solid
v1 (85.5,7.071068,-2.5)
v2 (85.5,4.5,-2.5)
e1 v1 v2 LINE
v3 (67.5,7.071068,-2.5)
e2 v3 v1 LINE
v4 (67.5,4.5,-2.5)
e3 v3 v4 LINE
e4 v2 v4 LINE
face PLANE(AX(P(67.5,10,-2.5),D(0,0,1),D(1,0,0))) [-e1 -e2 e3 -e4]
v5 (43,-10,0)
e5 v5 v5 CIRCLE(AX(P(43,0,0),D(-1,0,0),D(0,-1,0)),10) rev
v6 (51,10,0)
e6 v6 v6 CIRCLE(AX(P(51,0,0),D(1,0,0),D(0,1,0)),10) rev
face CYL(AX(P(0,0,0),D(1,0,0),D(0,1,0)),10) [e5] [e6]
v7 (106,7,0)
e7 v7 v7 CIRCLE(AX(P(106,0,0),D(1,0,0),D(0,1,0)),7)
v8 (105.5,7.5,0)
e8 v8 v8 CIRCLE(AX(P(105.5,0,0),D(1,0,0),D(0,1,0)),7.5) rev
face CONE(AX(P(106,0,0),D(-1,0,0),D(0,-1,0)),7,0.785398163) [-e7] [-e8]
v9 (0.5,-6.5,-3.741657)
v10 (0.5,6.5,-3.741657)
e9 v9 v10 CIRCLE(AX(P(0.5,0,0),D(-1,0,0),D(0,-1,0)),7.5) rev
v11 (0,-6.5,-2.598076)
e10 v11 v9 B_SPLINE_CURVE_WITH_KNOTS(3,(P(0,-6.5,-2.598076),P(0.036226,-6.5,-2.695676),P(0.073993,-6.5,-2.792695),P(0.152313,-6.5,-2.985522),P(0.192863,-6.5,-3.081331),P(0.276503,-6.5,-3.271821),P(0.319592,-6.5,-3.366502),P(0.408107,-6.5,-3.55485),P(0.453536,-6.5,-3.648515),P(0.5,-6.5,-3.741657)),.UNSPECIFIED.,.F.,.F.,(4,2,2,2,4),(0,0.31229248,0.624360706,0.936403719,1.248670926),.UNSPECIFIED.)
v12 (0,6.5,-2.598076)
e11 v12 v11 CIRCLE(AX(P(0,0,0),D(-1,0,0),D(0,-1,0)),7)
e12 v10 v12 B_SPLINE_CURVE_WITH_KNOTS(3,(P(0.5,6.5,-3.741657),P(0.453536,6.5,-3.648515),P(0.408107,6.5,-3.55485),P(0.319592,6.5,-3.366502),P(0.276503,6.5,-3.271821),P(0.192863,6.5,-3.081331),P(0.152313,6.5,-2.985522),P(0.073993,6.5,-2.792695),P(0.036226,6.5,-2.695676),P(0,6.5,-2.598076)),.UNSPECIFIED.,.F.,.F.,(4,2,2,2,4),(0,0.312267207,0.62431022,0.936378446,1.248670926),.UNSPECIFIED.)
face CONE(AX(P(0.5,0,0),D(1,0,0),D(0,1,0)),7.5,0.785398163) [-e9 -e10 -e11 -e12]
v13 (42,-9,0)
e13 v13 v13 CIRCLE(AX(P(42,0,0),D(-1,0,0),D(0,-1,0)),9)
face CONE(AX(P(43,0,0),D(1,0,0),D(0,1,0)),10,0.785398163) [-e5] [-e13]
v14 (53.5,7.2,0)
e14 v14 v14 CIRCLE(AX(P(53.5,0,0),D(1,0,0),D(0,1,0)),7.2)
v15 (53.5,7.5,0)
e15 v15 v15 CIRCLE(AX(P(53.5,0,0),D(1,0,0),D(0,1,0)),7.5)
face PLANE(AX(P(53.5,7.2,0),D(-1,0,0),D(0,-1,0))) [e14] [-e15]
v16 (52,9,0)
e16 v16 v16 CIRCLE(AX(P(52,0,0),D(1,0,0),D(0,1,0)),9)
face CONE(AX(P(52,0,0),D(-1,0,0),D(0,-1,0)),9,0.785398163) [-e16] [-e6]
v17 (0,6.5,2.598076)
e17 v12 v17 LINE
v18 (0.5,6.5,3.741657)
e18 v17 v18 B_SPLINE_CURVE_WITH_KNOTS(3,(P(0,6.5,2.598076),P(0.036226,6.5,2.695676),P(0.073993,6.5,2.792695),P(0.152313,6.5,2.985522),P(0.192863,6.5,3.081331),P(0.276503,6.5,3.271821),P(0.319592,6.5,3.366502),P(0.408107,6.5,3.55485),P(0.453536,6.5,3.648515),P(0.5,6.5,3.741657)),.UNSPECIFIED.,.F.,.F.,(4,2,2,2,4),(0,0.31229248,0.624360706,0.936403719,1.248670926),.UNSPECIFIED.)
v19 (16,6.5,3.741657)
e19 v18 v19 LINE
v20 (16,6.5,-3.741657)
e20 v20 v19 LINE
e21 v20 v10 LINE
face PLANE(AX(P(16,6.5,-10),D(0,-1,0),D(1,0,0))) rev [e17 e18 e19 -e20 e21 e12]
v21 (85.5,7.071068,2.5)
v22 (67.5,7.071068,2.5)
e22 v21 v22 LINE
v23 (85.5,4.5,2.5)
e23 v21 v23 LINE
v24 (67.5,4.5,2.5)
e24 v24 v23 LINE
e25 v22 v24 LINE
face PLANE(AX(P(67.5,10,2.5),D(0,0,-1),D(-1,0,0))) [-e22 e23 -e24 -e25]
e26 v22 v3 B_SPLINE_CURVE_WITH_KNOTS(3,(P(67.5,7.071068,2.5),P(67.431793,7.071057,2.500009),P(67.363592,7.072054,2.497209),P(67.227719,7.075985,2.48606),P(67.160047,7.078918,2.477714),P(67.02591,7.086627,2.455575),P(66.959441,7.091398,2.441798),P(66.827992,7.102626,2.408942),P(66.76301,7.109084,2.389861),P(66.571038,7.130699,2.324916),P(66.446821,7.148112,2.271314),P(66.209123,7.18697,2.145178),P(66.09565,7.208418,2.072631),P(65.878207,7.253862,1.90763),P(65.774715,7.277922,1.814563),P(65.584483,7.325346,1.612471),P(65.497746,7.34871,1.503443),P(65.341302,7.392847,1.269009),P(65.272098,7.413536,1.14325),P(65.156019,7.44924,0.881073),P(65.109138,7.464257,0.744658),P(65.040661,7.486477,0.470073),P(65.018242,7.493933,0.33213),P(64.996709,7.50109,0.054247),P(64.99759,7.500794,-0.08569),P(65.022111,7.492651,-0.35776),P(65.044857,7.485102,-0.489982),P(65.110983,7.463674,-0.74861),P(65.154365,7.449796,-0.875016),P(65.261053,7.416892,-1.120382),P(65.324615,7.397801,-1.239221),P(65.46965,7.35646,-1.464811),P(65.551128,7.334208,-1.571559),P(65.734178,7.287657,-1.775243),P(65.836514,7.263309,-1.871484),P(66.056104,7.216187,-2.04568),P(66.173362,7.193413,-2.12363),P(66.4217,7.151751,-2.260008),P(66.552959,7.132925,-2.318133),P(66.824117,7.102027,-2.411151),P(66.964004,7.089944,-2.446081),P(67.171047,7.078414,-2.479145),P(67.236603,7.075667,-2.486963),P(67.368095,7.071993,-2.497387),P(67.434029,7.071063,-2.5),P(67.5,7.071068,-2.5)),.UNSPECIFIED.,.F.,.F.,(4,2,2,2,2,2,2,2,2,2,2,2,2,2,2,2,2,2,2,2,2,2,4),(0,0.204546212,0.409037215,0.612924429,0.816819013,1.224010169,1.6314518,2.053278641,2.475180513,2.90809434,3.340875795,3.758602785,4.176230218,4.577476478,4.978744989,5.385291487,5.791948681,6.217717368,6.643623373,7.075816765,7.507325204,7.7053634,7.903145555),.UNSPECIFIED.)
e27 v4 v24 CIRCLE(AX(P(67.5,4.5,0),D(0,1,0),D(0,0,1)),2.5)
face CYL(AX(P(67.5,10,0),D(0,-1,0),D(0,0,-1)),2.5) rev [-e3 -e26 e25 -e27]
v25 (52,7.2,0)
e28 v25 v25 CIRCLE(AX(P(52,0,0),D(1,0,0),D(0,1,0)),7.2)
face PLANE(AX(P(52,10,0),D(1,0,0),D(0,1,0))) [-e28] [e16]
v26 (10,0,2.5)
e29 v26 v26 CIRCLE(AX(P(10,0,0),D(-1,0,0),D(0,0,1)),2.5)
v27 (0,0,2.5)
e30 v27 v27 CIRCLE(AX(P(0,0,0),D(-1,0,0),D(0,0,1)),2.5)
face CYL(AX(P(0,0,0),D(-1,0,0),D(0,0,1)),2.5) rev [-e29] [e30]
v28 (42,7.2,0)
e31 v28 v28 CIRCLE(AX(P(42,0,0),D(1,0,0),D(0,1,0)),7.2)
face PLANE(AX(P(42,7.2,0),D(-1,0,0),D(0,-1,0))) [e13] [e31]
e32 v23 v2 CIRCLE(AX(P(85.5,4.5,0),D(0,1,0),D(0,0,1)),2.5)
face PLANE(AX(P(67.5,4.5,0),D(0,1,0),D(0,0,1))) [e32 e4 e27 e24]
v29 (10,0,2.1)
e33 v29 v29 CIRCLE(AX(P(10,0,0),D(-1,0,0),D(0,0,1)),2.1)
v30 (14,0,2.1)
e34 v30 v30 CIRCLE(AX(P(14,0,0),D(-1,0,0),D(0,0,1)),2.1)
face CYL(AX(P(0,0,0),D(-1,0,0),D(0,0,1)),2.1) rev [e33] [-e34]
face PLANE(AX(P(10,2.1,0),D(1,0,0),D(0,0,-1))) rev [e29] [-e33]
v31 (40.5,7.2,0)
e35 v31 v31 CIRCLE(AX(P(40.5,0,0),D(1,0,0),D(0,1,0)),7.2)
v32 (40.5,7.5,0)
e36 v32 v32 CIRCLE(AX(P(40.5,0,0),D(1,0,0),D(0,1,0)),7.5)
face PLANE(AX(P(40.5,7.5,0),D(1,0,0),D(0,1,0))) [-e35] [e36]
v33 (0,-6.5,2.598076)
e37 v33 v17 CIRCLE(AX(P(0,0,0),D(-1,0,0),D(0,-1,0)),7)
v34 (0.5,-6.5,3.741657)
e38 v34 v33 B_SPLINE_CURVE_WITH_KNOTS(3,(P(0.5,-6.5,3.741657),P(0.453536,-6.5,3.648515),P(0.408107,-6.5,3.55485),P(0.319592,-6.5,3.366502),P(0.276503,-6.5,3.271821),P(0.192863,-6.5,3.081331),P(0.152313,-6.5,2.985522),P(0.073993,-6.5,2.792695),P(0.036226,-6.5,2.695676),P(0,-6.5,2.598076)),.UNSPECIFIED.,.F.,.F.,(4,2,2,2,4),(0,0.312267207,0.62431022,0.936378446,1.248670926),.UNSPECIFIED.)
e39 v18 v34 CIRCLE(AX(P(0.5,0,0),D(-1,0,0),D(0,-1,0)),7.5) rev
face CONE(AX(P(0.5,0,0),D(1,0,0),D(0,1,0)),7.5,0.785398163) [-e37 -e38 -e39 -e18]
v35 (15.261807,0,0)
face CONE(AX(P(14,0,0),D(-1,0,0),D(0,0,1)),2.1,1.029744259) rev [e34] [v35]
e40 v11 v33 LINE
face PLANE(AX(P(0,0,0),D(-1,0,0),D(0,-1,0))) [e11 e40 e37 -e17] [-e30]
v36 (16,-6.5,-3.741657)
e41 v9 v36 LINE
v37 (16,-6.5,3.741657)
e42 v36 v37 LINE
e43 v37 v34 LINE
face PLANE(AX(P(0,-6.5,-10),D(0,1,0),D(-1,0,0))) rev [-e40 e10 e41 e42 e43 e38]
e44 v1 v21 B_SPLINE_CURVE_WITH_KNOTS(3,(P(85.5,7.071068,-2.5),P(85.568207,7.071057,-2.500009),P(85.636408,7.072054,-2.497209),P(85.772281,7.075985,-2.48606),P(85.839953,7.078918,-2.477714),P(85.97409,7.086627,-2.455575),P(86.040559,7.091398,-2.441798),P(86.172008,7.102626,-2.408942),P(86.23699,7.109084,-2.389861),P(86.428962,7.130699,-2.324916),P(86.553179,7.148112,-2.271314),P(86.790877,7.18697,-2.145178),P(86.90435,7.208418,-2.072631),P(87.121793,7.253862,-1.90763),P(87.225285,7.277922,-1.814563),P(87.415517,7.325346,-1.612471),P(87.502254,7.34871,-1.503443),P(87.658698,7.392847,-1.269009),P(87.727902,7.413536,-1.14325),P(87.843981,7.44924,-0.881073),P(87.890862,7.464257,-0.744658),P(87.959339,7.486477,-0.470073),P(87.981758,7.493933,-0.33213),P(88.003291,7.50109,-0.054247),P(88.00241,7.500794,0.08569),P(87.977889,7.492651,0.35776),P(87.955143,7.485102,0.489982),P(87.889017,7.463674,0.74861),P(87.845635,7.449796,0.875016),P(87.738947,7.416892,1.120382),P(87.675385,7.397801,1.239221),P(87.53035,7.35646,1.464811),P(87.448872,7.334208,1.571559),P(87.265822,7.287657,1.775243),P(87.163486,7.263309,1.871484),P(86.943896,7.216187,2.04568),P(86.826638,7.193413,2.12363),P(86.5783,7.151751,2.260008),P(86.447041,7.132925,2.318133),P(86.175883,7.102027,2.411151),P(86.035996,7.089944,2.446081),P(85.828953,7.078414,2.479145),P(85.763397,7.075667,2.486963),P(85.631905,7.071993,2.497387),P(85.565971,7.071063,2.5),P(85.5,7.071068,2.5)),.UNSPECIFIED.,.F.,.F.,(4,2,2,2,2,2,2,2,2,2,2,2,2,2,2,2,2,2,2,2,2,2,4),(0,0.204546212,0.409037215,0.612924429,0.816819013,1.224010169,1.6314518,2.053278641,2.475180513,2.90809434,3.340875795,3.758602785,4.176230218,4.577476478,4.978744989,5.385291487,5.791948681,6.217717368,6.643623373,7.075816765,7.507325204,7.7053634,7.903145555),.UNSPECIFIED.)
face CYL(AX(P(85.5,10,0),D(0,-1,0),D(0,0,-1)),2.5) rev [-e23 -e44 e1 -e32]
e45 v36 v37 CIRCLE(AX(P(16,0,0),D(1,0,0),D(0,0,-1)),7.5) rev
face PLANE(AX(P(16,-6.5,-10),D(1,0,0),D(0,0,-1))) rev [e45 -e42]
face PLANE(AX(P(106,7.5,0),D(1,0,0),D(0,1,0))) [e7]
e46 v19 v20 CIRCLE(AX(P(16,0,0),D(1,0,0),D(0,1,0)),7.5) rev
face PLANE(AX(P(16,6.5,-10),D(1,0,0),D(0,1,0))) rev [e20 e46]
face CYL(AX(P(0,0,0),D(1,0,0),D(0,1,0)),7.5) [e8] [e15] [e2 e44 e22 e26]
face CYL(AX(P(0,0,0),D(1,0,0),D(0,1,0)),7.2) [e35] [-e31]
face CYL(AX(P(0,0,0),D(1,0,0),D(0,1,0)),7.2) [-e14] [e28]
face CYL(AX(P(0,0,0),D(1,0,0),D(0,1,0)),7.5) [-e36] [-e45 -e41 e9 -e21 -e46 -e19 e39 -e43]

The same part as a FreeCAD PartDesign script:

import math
import FreeCAD as App
import Part
import Sketcher


def edges_at(feature, points):
    """Names of the edges that pass closest to the given points."""
    edges = feature.Shape.Edges
    near = lambda p: min(range(len(edges)), key=lambda i: edges[i].distToShape(Part.Vertex(*p))[0])
    return sorted({f"Edge{near(p) + 1}" for p in points})


def add_polygon(sketch, points):
    """Adds a closed chain of lines whose ends are joined by coincident constraints."""
    first, n = sketch.GeometryCount, len(points)
    for a, b in zip(points, points[1:] + points[:1]):
        sketch.addGeometry(Part.LineSegment(App.Vector(*a, 0), App.Vector(*b, 0)), False)
    for i in range(n):
        sketch.addConstraint(Sketcher.Constraint("Coincident", first + i, 2, first + (i + 1) % n, 1))

doc = App.newDocument("Part")
body = doc.addObject("PartDesign::Body", "Body")

sketch1 = body.newObject("Sketcher::SketchObject", "Sketch")
sketch1.AttachmentSupport = (doc.getObject("XY_Plane"), [""])
sketch1.MapMode = "FlatFace"
add_polygon(sketch1, [(0, 7.5), (0, 0), (106, 0), (106, 7.5), (53.5, 7.5), (53.5, 7.2), (52, 7.2), (52, 10), (42, 10), (42, 7.2), (40.5, 7.2), (40.5, 7.5)])
sketch1.addConstraint(Sketcher.Constraint("Vertical", 0))
sketch1.addConstraint(Sketcher.Constraint("Horizontal", 1))
sketch1.addConstraint(Sketcher.Constraint("Vertical", 2))
sketch1.addConstraint(Sketcher.Constraint("Horizontal", 3))
sketch1.addConstraint(Sketcher.Constraint("Vertical", 4))
sketch1.addConstraint(Sketcher.Constraint("Horizontal", 5))
sketch1.addConstraint(Sketcher.Constraint("Vertical", 6))
sketch1.addConstraint(Sketcher.Constraint("Horizontal", 7))
sketch1.addConstraint(Sketcher.Constraint("Vertical", 8))
sketch1.addConstraint(Sketcher.Constraint("Horizontal", 9))
sketch1.addConstraint(Sketcher.Constraint("Vertical", 10))
sketch1.addConstraint(Sketcher.Constraint("Horizontal", 11))
sketch1.addConstraint(Sketcher.Constraint("Coincident", 0, 2, -1, 1))
sketch1.addConstraint(Sketcher.Constraint("Horizontal", 5, 2, 8, 2))
sketch1.addConstraint(Sketcher.Constraint("Horizontal", 3, 2, 10, 2))
sketch1.addConstraint(Sketcher.Constraint("Equal", 5, 9))
sketch1.addConstraint(Sketcher.Constraint("DistanceX", 1, 1, 1, 2, 106.0))
sketch1.addConstraint(Sketcher.Constraint("DistanceX", 7, 2, 7, 1, 10.0))
sketch1.addConstraint(Sketcher.Constraint("DistanceX", 3, 2, 3, 1, 52.5))
sketch1.addConstraint(Sketcher.Constraint("DistanceX", 5, 2, 5, 1, 1.5))
sketch1.addConstraint(Sketcher.Constraint("DistanceY", 0, 2, 0, 1, 7.5))
sketch1.addConstraint(Sketcher.Constraint("DistanceY", 4, 2, 4, 1, 0.3))
sketch1.addConstraint(Sketcher.Constraint("DistanceY", 6, 1, 6, 2, 2.8))
revolution = body.newObject("PartDesign::Revolution", "Revolution")
revolution.Profile = sketch1
revolution.ReferenceAxis = (sketch1, ["H_Axis"])
revolution.Angle = 360

sketch2 = body.newObject("Sketcher::SketchObject", "Sketch001")
sketch2.AttachmentSupport = (doc.getObject("XY_Plane"), [""])
sketch2.MapMode = "FlatFace"
add_polygon(sketch2, [(0, 10), (0, 6.5), (16, 6.5), (16, 10)])
add_polygon(sketch2, [(0, -6.5), (0, -10), (16, -10), (16, -6.5)])
sketch2.addConstraint(Sketcher.Constraint("Vertical", 0))
sketch2.addConstraint(Sketcher.Constraint("Horizontal", 1))
sketch2.addConstraint(Sketcher.Constraint("Vertical", 2))
sketch2.addConstraint(Sketcher.Constraint("Horizontal", 3))
sketch2.addConstraint(Sketcher.Constraint("Vertical", 4))
sketch2.addConstraint(Sketcher.Constraint("Horizontal", 5))
sketch2.addConstraint(Sketcher.Constraint("Vertical", 6))
sketch2.addConstraint(Sketcher.Constraint("Horizontal", 7))
sketch2.addConstraint(Sketcher.Constraint("Symmetric", 3, 2, 4, 2, -1, 1))
sketch2.addConstraint(Sketcher.Constraint("Symmetric", 1, 2, 6, 2, -1))
sketch2.addConstraint(Sketcher.Constraint("PointOnObject", 0, 2, -2))
sketch2.addConstraint(Sketcher.Constraint("DistanceX", 1, 1, 1, 2, 16.0))
sketch2.addConstraint(Sketcher.Constraint("DistanceY", 0, 2, 0, 1, 3.5))
sketch2.addConstraint(Sketcher.Constraint("DistanceY", -1, 1, 2, 2, 10.0))
pocket1 = body.newObject("PartDesign::Pocket", "Pocket")
pocket1.Profile = sketch2
pocket1.Type = "ThroughAll"
pocket1.Midplane = True

sketch3 = body.newObject("Sketcher::SketchObject", "Sketch002")
sketch3.AttachmentSupport = (doc.getObject("XZ_Plane"), [""])
sketch3.MapMode = "FlatFace"
sketch3.AttachmentOffset = App.Placement(App.Vector(0, 0, -4.5), App.Rotation())
sketch3.addGeometry(Part.LineSegment(App.Vector(85.5, -2.5, 0), App.Vector(67.5, -2.5, 0)), False)
sketch3.addGeometry(Part.ArcOfCircle(Part.Circle(App.Vector(67.5, 0, 0), App.Vector(0, 0, 1), 2.5), math.radians(90), math.radians(270)), False)
sketch3.addGeometry(Part.LineSegment(App.Vector(67.5, 2.5, 0), App.Vector(85.5, 2.5, 0)), False)
sketch3.addGeometry(Part.ArcOfCircle(Part.Circle(App.Vector(85.5, 0, 0), App.Vector(0, 0, 1), 2.5), math.radians(-90), math.radians(90)), False)
sketch3.addConstraint(Sketcher.Constraint("Tangent", 0, 2, 1, 2))
sketch3.addConstraint(Sketcher.Constraint("Tangent", 1, 1, 2, 1))
sketch3.addConstraint(Sketcher.Constraint("Tangent", 2, 2, 3, 2))
sketch3.addConstraint(Sketcher.Constraint("Tangent", 3, 1, 0, 1))
sketch3.addConstraint(Sketcher.Constraint("Horizontal", 0))
sketch3.addConstraint(Sketcher.Constraint("Horizontal", 2))
sketch3.addConstraint(Sketcher.Constraint("PointOnObject", 1, 3, -1))
sketch3.addConstraint(Sketcher.Constraint("Radius", 1, 2.5))
sketch3.addConstraint(Sketcher.Constraint("DistanceX", 0, 2, 0, 1, 18.0))
sketch3.addConstraint(Sketcher.Constraint("DistanceX", -1, 1, 1, 3, 67.5))
pocket2 = body.newObject("PartDesign::Pocket", "Pocket001")
pocket2.Profile = sketch3
pocket2.Type = "ThroughAll"

sketch4 = body.newObject("Sketcher::SketchObject", "Sketch003")
sketch4.AttachmentSupport = (doc.getObject("YZ_Plane"), [""])
sketch4.MapMode = "FlatFace"
sketch4.addGeometry(Part.Circle(App.Vector(0, 0, 0), App.Vector(0, 0, 1), 2.1), False)
sketch4.addConstraint(Sketcher.Constraint("Coincident", 0, 3, -1, 1))
sketch4.addConstraint(Sketcher.Constraint("Diameter", 0, 4.2))
doc.recompute()
hole = body.newObject("PartDesign::Hole", "Hole")
hole.Profile = sketch4
hole.ThreadType = "None"
hole.Diameter = 4.2
hole.DepthType = "Dimension"
hole.Depth = 14
hole.DrillPoint = "Angled"
hole.DrillPointAngle = 118
hole.HoleCutType = "Counterbore"
hole.HoleCutDiameter = 5
hole.HoleCutDepth = 10
hole.Reversed = True
doc.recompute()

chamfer = body.newObject("PartDesign::Chamfer", "Chamfer")
chamfer.Base = (hole, edges_at(hole, [(52, -10, 0), (42, -10, 0)]))
chamfer.Size = 1
doc.recompute()

chamfer2 = body.newObject("PartDesign::Chamfer", "Chamfer001")
chamfer2.Base = (chamfer, edges_at(chamfer, [(0, 0, 7.5), (0, 0, -7.5), (106, -7.5, 0)]))
chamfer2.Size = 0.5

doc.recompute()
